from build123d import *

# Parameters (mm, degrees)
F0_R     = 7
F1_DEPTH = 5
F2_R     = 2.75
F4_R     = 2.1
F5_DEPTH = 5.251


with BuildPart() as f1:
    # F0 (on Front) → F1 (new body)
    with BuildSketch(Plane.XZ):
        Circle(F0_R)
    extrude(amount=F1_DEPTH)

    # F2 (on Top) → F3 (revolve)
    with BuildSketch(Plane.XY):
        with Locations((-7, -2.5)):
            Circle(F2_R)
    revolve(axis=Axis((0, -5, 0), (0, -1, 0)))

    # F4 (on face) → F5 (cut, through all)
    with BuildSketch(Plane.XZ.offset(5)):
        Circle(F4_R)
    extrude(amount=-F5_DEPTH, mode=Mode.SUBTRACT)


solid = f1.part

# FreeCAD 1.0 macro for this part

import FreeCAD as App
import Part
import Sketcher

V = App.Vector
Q = App.Units.Quantity

doc = App.newDocument("Part")
body = doc.addObject("PartDesign::Body", "Body")

# Sketch on XZ plane
sketch1 = doc.addObject("Sketcher::SketchObject", "Sketch")
body.addObject(sketch1)
sketch1.AttachmentSupport = (doc.XZ_Plane, [""])
sketch1.MapMode = "FlatFace"
sketch1.addGeometry(Part.Circle(V(0, 0, 0), V(0, 0, 1), 7), False)
sketch1.addConstraint(Sketcher.Constraint("Coincident", 0, 3, -1, 1))
sketch1.addConstraint(Sketcher.Constraint("Diameter", 0, Q("14 mm")))
pad1 = doc.addObject("PartDesign::Pad", "Pad")
body.addObject(pad1)
pad1.Profile = sketch1
pad1.Length = 5

# Sketch on XY plane
sketch2 = doc.addObject("Sketcher::SketchObject", "Sketch001")
body.addObject(sketch2)
sketch2.AttachmentSupport = (doc.XY_Plane, [""])
sketch2.MapMode = "FlatFace"
sketch2.addGeometry(Part.Circle(V(-7, -2.5, 0), V(0, 0, 1), 2.75), False)
sketch2.addConstraint(Sketcher.Constraint("Diameter", 0, Q("5.5 mm")))
sketch2.addConstraint(Sketcher.Constraint("DistanceX", 0, 3, -1, 1, Q("7 mm")))
sketch2.addConstraint(Sketcher.Constraint("DistanceY", 0, 3, -1, 1, Q("2.5 mm")))
revolution = doc.addObject("PartDesign::Revolution", "Revolution")
body.addObject(revolution)
revolution.Profile = sketch2
revolution.ReferenceAxis = (sketch2, ["V_Axis"])
revolution.Angle = 360

# Sketch on XZ plane
sketch3 = doc.addObject("Sketcher::SketchObject", "Sketch002")
body.addObject(sketch3)
sketch3.AttachmentSupport = (doc.XZ_Plane, [""])
sketch3.MapMode = "FlatFace"
sketch3.AttachmentOffset = App.Placement(V(0, 0, 5), App.Rotation())
sketch3.addGeometry(Part.Circle(V(0, 0, 0), V(0, 0, 1), 2.1), False)
sketch3.addConstraint(Sketcher.Constraint("Coincident", 0, 3, -1, 1))
sketch3.addConstraint(Sketcher.Constraint("Diameter", 0, Q("4.2 mm")))
pocket1 = doc.addObject("PartDesign::Pocket", "Pocket")
body.addObject(pocket1)
pocket1.Profile = sketch3
pocket1.Type = "ThroughAll"

doc.recompute()
